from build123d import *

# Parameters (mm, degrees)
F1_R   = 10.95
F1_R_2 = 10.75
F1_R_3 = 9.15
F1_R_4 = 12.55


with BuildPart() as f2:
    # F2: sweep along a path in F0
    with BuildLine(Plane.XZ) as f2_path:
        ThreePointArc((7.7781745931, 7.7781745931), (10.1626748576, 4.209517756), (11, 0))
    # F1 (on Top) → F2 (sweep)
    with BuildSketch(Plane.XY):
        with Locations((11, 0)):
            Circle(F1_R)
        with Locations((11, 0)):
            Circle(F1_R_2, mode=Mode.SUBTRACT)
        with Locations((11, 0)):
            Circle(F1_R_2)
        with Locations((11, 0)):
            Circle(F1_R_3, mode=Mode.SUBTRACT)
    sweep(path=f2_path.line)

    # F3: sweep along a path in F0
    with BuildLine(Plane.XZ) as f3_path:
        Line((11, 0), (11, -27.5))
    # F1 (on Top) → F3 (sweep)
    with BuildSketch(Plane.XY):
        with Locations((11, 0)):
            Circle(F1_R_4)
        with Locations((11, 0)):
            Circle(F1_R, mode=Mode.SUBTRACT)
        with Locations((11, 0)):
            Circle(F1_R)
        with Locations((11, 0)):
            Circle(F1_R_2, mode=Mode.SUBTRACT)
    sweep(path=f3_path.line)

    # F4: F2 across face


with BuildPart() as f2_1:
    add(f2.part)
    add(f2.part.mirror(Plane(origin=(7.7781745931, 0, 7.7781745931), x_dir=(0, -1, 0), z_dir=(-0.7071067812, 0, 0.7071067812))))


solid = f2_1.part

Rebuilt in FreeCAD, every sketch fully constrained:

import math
import FreeCAD as App
import Part
import Sketcher
Q = App.Units.Quantity

doc = App.newDocument("Part")
body = doc.addObject("PartDesign::Body", "Body")

# Sketch on XY plane
sketch1 = body.newObject("Sketcher::SketchObject", "Sketch")
sketch1.AttachmentSupport = (doc.getObject("XY_Plane"), [""])
sketch1.MapMode = "FlatFace"
sketch1.addGeometry([
    Part.Circle(App.Vector(11, 0, 0), App.Vector(0, 0, 1), 10.95),
    Part.Circle(App.Vector(11, 0, 0), App.Vector(0, 0, 1), 9.15),
], False)
sketch1.addConstraint([
    Sketcher.Constraint("Coincident", 1, 3, 0, 3),
    Sketcher.Constraint("PointOnObject", 0, 3, -1),
    Sketcher.Constraint("Diameter", 0, Q("21.9 mm")),
    Sketcher.Constraint("Diameter", 1, Q("18.3 mm")),
    Sketcher.Constraint("DistanceX", -1, 1, 0, 3, Q("11 mm")),
])

# Sketch on XZ plane
sketch2 = body.newObject("Sketcher::SketchObject", "Sketch001")
sketch2.AttachmentSupport = (doc.getObject("XZ_Plane"), [""])
sketch2.MapMode = "FlatFace"
sketch2.addGeometry(Part.ArcOfCircle(Part.Circle(App.Vector(0, 0, 0), App.Vector(0, 0, 1), 11), math.radians(0), math.radians(45)), False)
sketch2.addConstraint([
    Sketcher.Constraint("Coincident", 0, 3, -1, 1),
    Sketcher.Constraint("PointOnObject", 0, 1, -1),
    Sketcher.Constraint("Radius", 0, Q("11 mm")),
    Sketcher.Constraint("DistanceX", -1, 1, 0, 2, Q("7.778175 mm")),
])
doc.recompute()

additivepipe = body.newObject("PartDesign::AdditivePipe", "AdditivePipe")
additivepipe.Profile = sketch1
additivepipe.Spine = (sketch2, ["Edge1"])

# Sketch on XY plane
sketch3 = body.newObject("Sketcher::SketchObject", "Sketch002")
sketch3.AttachmentSupport = (doc.getObject("XY_Plane"), [""])
sketch3.MapMode = "FlatFace"
sketch3.addGeometry([
    Part.Circle(App.Vector(11, 0, 0), App.Vector(0, 0, 1), 12.55),
    Part.Circle(App.Vector(11, 0, 0), App.Vector(0, 0, 1), 10.75),
], False)
sketch3.addConstraint([
    Sketcher.Constraint("Coincident", 1, 3, 0, 3),
    Sketcher.Constraint("PointOnObject", 0, 3, -1),
    Sketcher.Constraint("Diameter", 0, Q("25.1 mm")),
    Sketcher.Constraint("Diameter", 1, Q("21.5 mm")),
    Sketcher.Constraint("DistanceX", -1, 1, 0, 3, Q("11 mm")),
])

# Sketch on XZ plane
sketch4 = body.newObject("Sketcher::SketchObject", "Sketch003")
sketch4.AttachmentSupport = (doc.getObject("XZ_Plane"), [""])
sketch4.MapMode = "FlatFace"
sketch4.addGeometry(Part.LineSegment(App.Vector(11, 0, 0), App.Vector(11, -27.5, 0)), False)
sketch4.addConstraint([
    Sketcher.Constraint("Vertical", 0),
    Sketcher.Constraint("PointOnObject", 0, 1, -1),
    Sketcher.Constraint("DistanceY", 0, 2, 0, 1, Q("27.5 mm")),
    Sketcher.Constraint("DistanceX", -1, 1, 0, 1, Q("11 mm")),
])
doc.recompute()

additivepipe2 = body.newObject("PartDesign::AdditivePipe", "AdditivePipe001")
additivepipe2.Profile = sketch3
additivepipe2.Spine = (sketch4, ["Edge1"])
body2 = doc.addObject("PartDesign::Body", "Body001")
doc.recompute()

body2.BaseFeature = body
doc.recompute()

mirroring = doc.addObject("Part::Mirroring", "Mirroring")
mirroring.Source = body
mirroring.Base = App.Vector(7.778175, 0, 7.778175)
mirroring.Normal = App.Vector(-0.707106781, 0, 0.707106781)
body3 = doc.addObject("PartDesign::Body", "Body002")
body3.BaseFeature = mirroring
boolean = body2.newObject("PartDesign::Boolean", "Boolean")
boolean.Type = "Fuse"
boolean.addObjects([body3])
doc.recompute()
mirroring.Visibility = False

doc.recompute()
